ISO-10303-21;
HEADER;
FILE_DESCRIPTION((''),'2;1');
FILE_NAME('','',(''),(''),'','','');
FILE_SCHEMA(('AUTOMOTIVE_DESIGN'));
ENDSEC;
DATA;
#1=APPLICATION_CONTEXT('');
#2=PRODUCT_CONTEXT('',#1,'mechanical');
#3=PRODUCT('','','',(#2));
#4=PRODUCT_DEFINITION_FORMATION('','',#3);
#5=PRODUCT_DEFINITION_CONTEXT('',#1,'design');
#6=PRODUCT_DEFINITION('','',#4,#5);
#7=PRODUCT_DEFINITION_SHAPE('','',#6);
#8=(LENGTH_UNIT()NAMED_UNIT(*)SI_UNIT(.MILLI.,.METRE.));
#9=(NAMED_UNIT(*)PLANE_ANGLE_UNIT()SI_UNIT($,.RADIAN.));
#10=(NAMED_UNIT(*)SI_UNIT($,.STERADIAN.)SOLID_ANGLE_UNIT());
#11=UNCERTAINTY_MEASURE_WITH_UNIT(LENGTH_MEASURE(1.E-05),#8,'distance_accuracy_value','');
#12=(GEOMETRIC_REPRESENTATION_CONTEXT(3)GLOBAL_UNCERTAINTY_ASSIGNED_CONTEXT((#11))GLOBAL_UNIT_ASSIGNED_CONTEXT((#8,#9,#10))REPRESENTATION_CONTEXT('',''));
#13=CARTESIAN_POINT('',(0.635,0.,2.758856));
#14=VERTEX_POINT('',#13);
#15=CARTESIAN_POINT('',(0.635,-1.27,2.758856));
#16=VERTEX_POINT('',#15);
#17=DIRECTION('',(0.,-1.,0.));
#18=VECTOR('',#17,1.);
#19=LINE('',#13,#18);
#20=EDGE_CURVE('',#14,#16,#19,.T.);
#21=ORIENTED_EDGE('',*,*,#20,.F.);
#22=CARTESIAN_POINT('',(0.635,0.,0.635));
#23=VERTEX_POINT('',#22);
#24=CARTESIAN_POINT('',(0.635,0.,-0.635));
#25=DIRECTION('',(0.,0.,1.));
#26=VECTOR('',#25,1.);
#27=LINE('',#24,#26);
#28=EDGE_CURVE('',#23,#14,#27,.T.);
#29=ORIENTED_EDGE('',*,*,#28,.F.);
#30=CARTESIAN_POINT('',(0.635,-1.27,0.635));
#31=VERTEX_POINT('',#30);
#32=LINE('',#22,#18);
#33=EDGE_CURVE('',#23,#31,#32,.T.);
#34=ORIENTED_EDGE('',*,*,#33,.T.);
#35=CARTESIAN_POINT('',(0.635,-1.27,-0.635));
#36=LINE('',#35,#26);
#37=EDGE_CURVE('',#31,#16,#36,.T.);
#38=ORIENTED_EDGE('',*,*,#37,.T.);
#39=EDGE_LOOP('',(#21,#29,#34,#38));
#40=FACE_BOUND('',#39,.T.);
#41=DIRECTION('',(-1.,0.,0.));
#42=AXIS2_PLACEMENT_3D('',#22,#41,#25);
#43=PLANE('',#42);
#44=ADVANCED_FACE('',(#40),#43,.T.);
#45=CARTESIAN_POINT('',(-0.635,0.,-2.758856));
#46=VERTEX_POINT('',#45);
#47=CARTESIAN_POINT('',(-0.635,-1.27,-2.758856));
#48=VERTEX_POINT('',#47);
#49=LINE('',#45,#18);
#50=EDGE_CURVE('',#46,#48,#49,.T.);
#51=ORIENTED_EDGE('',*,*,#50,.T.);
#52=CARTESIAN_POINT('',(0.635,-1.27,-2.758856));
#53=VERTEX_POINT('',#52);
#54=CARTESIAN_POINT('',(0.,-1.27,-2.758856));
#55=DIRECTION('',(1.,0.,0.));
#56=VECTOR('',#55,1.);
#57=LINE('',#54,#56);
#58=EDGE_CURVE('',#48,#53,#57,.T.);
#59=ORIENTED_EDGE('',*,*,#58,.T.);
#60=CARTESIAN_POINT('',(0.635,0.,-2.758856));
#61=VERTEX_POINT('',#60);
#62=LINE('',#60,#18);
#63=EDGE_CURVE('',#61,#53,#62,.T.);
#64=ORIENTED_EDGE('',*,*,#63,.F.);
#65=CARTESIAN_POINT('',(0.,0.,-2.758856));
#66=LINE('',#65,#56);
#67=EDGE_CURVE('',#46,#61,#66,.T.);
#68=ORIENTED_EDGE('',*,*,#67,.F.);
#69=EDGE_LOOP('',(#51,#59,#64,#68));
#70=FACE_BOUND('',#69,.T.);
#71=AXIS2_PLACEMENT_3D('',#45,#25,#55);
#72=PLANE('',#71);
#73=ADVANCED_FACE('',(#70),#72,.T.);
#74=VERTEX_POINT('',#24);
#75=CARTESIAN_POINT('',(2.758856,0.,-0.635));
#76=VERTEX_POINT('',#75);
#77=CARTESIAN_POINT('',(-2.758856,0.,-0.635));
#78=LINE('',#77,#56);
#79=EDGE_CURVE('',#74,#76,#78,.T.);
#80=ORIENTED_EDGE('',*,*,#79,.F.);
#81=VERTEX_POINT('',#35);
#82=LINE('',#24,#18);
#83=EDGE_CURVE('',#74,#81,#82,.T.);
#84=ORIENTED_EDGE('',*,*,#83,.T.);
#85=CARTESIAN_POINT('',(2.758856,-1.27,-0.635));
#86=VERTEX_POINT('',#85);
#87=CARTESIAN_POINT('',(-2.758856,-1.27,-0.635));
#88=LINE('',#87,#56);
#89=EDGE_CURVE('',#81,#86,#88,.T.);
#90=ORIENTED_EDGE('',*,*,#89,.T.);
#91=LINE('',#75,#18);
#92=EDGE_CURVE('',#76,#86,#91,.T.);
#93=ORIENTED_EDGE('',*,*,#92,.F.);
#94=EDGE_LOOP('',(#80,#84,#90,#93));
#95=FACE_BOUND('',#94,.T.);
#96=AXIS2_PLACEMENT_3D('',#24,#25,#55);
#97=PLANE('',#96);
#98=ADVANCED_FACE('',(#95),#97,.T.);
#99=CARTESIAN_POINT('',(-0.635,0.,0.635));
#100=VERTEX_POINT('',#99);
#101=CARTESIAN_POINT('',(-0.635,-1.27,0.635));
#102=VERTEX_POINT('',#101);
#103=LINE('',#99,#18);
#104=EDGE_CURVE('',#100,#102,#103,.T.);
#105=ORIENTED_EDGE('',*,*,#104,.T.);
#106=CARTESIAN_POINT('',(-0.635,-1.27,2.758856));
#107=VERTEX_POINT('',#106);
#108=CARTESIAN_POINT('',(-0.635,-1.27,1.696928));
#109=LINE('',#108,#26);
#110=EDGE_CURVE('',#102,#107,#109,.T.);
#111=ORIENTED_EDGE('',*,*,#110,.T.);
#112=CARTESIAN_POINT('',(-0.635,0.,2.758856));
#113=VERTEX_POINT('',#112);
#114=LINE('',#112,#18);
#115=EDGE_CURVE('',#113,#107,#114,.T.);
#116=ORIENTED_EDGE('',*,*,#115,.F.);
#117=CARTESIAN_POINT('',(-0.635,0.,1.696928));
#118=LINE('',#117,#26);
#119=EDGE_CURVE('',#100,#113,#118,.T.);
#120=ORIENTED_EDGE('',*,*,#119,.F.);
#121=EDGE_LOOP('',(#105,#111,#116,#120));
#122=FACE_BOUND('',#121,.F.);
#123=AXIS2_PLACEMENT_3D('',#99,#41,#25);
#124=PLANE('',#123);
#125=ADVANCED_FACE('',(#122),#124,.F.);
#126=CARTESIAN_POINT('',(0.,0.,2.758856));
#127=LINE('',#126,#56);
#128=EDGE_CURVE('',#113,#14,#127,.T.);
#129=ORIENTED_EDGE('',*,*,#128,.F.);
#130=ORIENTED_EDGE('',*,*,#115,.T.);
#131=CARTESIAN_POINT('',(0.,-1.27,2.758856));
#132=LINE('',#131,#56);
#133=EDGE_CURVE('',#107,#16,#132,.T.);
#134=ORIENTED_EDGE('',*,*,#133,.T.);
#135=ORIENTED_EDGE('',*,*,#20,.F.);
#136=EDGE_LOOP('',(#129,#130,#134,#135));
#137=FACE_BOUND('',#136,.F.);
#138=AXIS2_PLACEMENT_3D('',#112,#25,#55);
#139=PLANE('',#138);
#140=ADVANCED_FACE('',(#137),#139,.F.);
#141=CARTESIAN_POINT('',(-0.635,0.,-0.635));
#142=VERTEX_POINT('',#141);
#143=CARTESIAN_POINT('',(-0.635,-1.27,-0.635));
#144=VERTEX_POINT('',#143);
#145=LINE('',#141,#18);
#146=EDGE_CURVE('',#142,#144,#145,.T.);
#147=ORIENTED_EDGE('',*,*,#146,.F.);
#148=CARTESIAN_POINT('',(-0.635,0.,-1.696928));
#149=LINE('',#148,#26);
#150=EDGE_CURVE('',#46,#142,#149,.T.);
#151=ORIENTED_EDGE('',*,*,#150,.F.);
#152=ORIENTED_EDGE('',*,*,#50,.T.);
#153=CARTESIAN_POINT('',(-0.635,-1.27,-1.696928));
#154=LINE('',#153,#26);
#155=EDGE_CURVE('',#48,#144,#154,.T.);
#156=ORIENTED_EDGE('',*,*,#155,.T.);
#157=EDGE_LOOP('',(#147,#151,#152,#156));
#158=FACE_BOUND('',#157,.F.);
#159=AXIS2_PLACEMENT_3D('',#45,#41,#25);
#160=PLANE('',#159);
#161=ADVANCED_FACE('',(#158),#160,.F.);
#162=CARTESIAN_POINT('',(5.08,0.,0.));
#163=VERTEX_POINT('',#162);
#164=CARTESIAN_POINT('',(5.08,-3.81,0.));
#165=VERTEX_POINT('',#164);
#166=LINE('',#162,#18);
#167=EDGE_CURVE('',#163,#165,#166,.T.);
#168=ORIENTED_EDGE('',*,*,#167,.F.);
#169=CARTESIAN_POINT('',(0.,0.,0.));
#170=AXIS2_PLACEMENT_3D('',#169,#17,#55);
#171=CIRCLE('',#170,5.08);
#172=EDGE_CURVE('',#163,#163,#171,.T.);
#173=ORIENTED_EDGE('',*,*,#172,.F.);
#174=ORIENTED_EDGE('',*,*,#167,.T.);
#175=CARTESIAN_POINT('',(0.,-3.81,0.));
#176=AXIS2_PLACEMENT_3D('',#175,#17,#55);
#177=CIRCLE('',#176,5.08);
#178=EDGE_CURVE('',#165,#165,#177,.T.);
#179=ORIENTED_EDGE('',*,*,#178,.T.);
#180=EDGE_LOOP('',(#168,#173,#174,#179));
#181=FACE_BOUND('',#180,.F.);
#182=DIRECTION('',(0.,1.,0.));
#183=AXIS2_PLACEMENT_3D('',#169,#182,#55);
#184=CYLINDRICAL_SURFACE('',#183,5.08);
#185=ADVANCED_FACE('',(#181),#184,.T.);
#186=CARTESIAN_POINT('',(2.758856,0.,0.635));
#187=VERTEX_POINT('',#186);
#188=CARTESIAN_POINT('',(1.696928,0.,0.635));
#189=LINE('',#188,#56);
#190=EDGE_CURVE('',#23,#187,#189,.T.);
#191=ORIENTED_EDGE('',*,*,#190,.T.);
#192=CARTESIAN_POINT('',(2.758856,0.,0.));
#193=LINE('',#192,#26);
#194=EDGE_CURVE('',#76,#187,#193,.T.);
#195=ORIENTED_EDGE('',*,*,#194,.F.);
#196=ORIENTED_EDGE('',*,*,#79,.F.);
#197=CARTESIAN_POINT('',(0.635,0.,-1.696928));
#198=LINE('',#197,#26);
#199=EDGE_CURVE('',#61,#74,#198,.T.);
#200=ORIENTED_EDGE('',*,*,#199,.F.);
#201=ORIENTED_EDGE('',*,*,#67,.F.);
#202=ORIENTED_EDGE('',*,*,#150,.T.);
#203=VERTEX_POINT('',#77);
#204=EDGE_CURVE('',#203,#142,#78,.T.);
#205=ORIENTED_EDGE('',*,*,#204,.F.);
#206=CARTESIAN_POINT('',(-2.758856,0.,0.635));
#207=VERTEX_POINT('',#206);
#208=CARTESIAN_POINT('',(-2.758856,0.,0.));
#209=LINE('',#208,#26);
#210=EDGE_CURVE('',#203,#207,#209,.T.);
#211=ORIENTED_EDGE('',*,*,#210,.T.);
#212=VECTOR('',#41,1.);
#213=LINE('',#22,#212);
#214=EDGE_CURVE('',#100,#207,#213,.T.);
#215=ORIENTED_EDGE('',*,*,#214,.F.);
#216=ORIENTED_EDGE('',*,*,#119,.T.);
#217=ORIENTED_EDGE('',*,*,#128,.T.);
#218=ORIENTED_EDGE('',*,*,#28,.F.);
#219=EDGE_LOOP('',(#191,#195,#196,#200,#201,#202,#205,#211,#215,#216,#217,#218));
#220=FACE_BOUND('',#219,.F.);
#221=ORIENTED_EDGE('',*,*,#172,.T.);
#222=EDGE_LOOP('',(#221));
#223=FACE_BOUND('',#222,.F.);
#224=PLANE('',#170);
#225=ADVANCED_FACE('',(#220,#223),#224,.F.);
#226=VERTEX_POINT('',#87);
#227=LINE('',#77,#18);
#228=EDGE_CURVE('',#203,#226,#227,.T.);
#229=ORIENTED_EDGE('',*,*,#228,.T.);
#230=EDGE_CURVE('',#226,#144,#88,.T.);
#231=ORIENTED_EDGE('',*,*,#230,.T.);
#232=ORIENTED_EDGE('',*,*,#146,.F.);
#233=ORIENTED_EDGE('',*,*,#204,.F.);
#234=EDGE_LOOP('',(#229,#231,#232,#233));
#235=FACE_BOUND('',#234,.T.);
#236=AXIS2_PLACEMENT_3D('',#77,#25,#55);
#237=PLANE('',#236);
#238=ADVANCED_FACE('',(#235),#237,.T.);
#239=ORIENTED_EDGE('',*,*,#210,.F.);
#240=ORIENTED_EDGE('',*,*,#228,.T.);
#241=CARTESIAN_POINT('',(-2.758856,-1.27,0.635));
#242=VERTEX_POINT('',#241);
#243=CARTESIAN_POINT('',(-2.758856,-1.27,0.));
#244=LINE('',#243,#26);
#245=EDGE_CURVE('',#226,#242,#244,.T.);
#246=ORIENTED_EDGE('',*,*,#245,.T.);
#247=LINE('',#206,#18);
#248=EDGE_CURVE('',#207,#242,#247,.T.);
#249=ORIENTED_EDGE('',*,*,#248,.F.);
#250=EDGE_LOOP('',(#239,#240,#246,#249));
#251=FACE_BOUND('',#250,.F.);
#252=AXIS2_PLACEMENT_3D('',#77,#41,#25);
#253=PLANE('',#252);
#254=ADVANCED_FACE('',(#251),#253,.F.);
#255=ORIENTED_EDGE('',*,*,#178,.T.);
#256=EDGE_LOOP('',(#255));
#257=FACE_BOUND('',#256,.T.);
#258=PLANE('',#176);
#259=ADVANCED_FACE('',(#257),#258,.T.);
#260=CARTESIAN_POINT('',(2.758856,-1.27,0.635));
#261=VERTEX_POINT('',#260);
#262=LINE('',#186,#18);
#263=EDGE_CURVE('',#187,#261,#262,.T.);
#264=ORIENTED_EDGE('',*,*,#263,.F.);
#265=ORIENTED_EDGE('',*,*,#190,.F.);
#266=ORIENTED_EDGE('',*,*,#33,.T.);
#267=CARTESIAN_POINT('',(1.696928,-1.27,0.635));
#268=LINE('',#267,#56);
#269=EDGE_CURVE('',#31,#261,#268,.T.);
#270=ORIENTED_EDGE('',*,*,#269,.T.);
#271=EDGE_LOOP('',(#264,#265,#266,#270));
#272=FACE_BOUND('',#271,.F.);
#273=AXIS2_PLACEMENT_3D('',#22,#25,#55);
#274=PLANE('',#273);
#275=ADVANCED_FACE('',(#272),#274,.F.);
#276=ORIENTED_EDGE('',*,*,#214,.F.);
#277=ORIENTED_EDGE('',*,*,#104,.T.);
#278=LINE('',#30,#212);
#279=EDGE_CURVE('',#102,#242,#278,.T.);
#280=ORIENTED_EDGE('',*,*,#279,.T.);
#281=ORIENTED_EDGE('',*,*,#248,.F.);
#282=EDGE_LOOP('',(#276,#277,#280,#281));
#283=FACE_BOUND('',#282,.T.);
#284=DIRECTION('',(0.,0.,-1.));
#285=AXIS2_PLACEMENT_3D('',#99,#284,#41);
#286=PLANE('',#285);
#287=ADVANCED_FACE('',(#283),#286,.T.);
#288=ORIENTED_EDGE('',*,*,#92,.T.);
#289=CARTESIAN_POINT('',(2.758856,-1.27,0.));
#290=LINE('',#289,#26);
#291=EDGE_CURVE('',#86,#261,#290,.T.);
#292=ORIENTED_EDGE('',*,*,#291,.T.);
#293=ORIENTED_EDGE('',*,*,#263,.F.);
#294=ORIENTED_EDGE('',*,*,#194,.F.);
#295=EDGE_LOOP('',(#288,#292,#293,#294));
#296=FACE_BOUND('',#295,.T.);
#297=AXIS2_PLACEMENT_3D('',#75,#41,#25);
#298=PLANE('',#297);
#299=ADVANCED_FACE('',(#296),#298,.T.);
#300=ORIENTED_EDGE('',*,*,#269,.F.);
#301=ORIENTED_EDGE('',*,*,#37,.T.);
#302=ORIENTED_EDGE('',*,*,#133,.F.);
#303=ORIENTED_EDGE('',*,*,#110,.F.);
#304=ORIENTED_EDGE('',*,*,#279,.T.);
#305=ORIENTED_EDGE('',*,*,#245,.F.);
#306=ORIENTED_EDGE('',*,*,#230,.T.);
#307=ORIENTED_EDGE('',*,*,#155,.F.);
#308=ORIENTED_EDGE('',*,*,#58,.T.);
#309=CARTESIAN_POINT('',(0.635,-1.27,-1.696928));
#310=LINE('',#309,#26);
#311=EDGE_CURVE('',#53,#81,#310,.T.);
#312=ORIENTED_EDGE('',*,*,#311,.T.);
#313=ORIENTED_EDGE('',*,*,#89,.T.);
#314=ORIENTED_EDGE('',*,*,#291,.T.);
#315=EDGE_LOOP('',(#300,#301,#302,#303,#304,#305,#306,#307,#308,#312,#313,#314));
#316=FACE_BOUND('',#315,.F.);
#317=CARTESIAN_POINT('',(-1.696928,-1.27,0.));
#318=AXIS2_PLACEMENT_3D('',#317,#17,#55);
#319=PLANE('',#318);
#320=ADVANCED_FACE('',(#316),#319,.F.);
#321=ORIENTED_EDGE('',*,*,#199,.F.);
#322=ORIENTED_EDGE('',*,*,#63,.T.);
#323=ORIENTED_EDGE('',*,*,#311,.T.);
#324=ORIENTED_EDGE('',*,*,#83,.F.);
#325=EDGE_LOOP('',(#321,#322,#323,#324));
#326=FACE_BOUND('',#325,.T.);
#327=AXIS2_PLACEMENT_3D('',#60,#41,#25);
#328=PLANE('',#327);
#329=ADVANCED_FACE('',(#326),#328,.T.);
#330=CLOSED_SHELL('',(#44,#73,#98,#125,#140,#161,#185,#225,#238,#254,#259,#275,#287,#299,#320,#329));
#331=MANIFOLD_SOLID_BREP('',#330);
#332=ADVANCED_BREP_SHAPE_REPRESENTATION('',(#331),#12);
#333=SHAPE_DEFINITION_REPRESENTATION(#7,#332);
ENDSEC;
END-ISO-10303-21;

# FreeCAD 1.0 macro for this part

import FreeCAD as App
import Part
import Sketcher

V = App.Vector
Q = App.Units.Quantity

doc = App.newDocument("Part")
body = doc.addObject("PartDesign::Body", "Body")

# Sketch on XZ plane
sketch1 = body.newObject("Sketcher::SketchObject", "Sketch")
sketch1.AttachmentSupport = (doc.getObject("XZ_Plane"), [""])
sketch1.MapMode = "FlatFace"
sketch1.addGeometry(Part.Circle(V(0, 0, 0), V(0, 0, 1), 5), False)
sketch1.addConstraint([
    Sketcher.Constraint("Coincident", 0, 3, -1, 1),
    Sketcher.Constraint("Diameter", 0, Q("0.4 in")),
])
pad1 = body.newObject("PartDesign::Pad", "Pad")
pad1.Profile = sketch1
pad1.Length = Q("0.15 in")

# Sketch on XZ plane
sketch2 = body.newObject("Sketcher::SketchObject", "Sketch001")
sketch2.AttachmentSupport = (doc.getObject("XZ_Plane"), [""])
sketch2.MapMode = "FlatFace"
sketch2.addGeometry([
    Part.LineSegment(V(-2.8, 0.6, 0), V(-2.8, -0.6, 0)),  # 0
    Part.LineSegment(V(-2.8, -0.6, 0), V(-0.6, -0.6, 0)),  # 1
    Part.LineSegment(V(-0.6, -0.6, 0), V(-0.6, -2.8, 0)),  # 2
    Part.LineSegment(V(-0.6, -2.8, 0), V(0.6, -2.8, 0)),  # 3
    Part.LineSegment(V(0.6, -2.8, 0), V(0.6, -0.6, 0)),  # 4
    Part.LineSegment(V(0.6, -0.6, 0), V(2.8, -0.6, 0)),  # 5
    Part.LineSegment(V(2.8, -0.6, 0), V(2.8, 0.6, 0)),  # 6
    Part.LineSegment(V(2.8, 0.6, 0), V(0.6, 0.6, 0)),  # 7
    Part.LineSegment(V(0.6, 0.6, 0), V(0.6, 2.8, 0)),  # 8
    Part.LineSegment(V(0.6, 2.8, 0), V(-0.6, 2.8, 0)),  # 9
    Part.LineSegment(V(-0.6, 2.8, 0), V(-0.6, 0.6, 0)),  # 10
    Part.LineSegment(V(-0.6, 0.6, 0), V(-2.8, 0.6, 0)),  # 11
], False)
sketch2.addConstraint([
    Sketcher.Constraint("Coincident", 0, 2, 1, 1),
    Sketcher.Constraint("Coincident", 1, 2, 2, 1),
    Sketcher.Constraint("Coincident", 2, 2, 3, 1),
    Sketcher.Constraint("Coincident", 3, 2, 4, 1),
    Sketcher.Constraint("Coincident", 4, 2, 5, 1),
    Sketcher.Constraint("Coincident", 5, 2, 6, 1),
    Sketcher.Constraint("Coincident", 6, 2, 7, 1),
    Sketcher.Constraint("Coincident", 7, 2, 8, 1),
    Sketcher.Constraint("Coincident", 8, 2, 9, 1),
    Sketcher.Constraint("Coincident", 9, 2, 10, 1),
    Sketcher.Constraint("Coincident", 10, 2, 11, 1),
    Sketcher.Constraint("Coincident", 11, 2, 0, 1),
    Sketcher.Constraint("Vertical", 0),
    Sketcher.Constraint("Horizontal", 1),
    Sketcher.Constraint("Vertical", 2),
    Sketcher.Constraint("Horizontal", 3),
    Sketcher.Constraint("Vertical", 4),
    Sketcher.Constraint("Horizontal", 5),
    Sketcher.Constraint("Vertical", 6),
    Sketcher.Constraint("Horizontal", 7),
    Sketcher.Constraint("Vertical", 8),
    Sketcher.Constraint("Horizontal", 9),
    Sketcher.Constraint("Vertical", 10),
    Sketcher.Constraint("Horizontal", 11),
    Sketcher.Constraint("Symmetric", 0, 2, 6, 2, -1, 1),
    Sketcher.Constraint("Symmetric", 2, 2, 8, 2, -1, 1),
    Sketcher.Constraint("Symmetric", 4, 2, 10, 2, -1, 1),
    Sketcher.Constraint("Symmetric", 1, 2, 4, 2, -2),
    Sketcher.Constraint("Equal", 9, 0),
    Sketcher.Constraint("Equal", 11, 2),
    Sketcher.Constraint("DistanceX", 3, 1, 3, 2, Q("0.05 in")),
    Sketcher.Constraint("DistanceX", 1, 1, 1, 2, Q("2.123856 mm")),
])
pocket1 = body.newObject("PartDesign::Pocket", "Pocket")
pocket1.Profile = sketch2
pocket1.Length = Q("0.05 in")
pocket1.Reversed = True

doc.recompute()
